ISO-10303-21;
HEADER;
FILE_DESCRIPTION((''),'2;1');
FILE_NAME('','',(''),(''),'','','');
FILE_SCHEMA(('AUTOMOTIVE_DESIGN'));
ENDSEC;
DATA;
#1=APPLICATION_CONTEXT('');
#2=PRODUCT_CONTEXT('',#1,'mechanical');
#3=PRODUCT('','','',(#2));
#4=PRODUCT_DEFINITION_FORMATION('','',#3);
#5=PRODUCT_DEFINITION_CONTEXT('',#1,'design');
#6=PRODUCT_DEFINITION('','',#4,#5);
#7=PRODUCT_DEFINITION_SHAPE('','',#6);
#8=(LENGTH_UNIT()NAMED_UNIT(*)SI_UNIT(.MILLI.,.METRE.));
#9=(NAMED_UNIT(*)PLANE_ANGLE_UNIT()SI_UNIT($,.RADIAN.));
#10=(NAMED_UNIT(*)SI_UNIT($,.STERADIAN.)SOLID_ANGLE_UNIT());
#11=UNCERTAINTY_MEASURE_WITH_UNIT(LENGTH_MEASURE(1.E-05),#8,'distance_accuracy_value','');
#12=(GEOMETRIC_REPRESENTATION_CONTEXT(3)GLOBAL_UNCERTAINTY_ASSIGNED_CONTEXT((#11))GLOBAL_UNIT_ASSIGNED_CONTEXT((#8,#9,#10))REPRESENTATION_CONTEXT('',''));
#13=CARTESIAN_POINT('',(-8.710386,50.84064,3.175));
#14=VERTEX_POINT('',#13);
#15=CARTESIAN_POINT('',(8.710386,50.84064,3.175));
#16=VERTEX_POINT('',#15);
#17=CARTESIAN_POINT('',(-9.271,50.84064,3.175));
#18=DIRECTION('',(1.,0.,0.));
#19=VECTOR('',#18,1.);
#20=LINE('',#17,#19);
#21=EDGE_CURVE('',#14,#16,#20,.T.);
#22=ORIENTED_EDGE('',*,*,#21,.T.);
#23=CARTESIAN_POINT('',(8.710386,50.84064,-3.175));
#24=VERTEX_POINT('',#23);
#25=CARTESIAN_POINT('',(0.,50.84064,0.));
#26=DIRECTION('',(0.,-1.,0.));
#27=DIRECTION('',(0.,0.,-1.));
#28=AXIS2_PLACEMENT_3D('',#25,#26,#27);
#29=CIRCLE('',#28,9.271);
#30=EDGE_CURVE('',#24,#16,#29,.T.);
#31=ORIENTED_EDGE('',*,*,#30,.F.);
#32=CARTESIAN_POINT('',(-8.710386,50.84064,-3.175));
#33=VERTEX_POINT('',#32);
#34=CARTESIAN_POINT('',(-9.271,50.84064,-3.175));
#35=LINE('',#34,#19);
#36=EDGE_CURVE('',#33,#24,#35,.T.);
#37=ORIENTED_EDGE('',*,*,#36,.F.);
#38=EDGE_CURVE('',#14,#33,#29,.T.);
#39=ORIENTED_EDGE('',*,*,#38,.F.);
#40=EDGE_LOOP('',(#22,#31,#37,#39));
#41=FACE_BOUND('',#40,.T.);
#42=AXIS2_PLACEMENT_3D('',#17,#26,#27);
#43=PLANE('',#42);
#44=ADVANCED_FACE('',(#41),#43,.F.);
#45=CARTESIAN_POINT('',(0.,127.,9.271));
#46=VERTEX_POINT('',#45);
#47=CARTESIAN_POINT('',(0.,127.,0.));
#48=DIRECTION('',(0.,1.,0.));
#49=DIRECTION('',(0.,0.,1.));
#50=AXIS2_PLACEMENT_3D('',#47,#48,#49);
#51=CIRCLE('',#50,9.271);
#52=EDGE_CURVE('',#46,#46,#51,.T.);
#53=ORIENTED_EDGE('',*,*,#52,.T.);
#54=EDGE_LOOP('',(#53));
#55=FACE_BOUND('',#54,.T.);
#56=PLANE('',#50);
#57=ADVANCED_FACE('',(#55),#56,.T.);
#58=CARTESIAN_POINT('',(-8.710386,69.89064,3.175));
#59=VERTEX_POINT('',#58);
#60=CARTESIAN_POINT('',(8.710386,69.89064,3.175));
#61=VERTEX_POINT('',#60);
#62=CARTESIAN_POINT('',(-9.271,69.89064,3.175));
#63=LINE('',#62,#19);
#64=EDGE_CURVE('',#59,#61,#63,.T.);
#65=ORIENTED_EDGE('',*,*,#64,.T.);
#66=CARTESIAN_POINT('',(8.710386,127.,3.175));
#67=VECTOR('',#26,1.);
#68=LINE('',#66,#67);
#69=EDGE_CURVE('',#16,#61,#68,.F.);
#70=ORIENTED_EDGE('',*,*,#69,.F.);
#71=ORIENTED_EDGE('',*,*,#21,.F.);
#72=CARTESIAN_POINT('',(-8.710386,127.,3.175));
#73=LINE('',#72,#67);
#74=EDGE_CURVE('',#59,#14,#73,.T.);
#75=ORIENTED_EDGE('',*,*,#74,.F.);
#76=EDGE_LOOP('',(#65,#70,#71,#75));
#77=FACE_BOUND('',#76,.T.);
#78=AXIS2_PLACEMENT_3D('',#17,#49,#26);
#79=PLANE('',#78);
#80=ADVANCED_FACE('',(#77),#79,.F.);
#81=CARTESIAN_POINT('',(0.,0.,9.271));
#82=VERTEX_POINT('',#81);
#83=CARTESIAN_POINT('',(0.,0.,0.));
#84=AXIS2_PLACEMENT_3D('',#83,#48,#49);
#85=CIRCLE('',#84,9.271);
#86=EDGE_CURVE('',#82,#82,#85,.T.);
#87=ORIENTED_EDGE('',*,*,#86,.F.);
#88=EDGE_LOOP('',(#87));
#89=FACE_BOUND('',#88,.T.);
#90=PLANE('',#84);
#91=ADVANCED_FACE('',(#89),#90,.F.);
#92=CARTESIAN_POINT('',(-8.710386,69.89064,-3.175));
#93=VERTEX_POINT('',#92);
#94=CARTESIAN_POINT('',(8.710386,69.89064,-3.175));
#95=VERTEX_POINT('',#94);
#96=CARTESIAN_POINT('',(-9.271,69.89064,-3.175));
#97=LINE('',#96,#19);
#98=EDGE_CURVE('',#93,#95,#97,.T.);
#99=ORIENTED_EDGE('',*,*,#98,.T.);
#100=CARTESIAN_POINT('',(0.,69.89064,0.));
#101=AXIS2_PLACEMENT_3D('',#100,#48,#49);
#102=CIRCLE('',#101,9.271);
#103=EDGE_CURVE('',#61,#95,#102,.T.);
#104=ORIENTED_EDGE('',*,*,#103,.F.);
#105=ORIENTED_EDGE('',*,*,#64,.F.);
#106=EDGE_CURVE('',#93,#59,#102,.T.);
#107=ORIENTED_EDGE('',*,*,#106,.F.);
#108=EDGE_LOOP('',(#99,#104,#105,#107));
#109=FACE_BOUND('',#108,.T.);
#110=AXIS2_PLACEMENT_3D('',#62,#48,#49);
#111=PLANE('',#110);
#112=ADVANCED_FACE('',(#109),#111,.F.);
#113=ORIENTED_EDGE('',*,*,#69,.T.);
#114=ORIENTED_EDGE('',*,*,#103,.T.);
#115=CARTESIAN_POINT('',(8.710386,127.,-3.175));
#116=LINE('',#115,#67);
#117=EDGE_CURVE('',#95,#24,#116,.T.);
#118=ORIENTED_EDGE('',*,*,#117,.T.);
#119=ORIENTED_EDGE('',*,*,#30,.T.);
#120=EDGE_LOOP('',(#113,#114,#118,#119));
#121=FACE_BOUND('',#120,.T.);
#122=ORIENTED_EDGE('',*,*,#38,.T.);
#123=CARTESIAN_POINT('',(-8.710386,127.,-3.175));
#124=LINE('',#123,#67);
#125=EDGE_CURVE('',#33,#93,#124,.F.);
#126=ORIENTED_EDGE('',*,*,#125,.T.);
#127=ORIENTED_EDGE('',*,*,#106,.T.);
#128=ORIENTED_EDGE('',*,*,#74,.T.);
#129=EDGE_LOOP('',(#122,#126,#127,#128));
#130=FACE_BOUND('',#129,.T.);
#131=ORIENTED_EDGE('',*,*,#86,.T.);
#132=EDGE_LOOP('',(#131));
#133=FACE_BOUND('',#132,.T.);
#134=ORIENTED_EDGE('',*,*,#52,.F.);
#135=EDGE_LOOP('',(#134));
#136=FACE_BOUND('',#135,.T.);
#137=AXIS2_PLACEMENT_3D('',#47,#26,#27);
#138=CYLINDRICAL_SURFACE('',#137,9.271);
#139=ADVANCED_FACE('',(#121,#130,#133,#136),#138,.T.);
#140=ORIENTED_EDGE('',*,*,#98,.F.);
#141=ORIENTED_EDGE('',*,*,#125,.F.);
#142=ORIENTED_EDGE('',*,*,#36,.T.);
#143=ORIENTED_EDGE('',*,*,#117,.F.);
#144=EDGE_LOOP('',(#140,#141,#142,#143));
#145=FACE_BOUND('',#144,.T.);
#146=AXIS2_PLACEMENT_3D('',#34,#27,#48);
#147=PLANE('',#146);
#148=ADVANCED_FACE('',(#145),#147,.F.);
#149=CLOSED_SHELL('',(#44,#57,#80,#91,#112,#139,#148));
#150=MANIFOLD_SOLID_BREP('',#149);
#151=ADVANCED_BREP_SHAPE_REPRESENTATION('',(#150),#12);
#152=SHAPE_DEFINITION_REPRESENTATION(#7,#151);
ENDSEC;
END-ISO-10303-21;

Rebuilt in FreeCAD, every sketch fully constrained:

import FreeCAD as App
import Part
import Sketcher

V = App.Vector
Q = App.Units.Quantity

doc = App.newDocument("Part")
body = doc.addObject("PartDesign::Body", "Body")

# Sketch on XZ plane
sketch1 = doc.addObject("Sketcher::SketchObject", "Sketch")
body.addObject(sketch1)
sketch1.AttachmentSupport = (doc.XZ_Plane, [""])
sketch1.MapMode = "FlatFace"
sketch1.addGeometry(Part.Circle(V(0, 0, 0), V(0, 0, 1), 9), False)
sketch1.addConstraint([
    Sketcher.Constraint("Coincident", 0, 3, -1, 1),
    Sketcher.Constraint("Diameter", 0, Q("0.73 in")),
])
pad1 = doc.addObject("PartDesign::Pad", "Pad")
body.addObject(pad1)
pad1.Profile = sketch1
pad1.Length = Q("5 in")
pad1.Reversed = True

# Sketch on YZ plane
sketch2 = doc.addObject("Sketcher::SketchObject", "Sketch001")
body.addObject(sketch2)
sketch2.AttachmentSupport = (doc.YZ_Plane, [""])
sketch2.MapMode = "FlatFace"
sketch2.addGeometry([
    Part.LineSegment(V(70, 3, 0), V(51, 3, 0)),
    Part.LineSegment(V(51, 3, 0), V(51, -3, 0)),
    Part.LineSegment(V(51, -3, 0), V(70, -3, 0)),
    Part.LineSegment(V(70, -3, 0), V(70, 3, 0)),
], False)
sketch2.addConstraint([
    Sketcher.Constraint("Coincident", 0, 2, 1, 1),
    Sketcher.Constraint("Coincident", 1, 2, 2, 1),
    Sketcher.Constraint("Coincident", 2, 2, 3, 1),
    Sketcher.Constraint("Coincident", 3, 2, 0, 1),
    Sketcher.Constraint("Horizontal", 0),
    Sketcher.Constraint("Vertical", 1),
    Sketcher.Constraint("Horizontal", 2),
    Sketcher.Constraint("Vertical", 3),
    Sketcher.Constraint("DistanceX", 0, 2, 0, 1, Q("0.75 in")),
    Sketcher.Constraint("DistanceY", 1, 2, 1, 1, Q("0.25 in")),
    Sketcher.Constraint("DistanceY", -1, 1, 0, 2, Q("0.125 in")),
    Sketcher.Constraint("DistanceX", -1, 1, 0, 2, Q("2.0016 in")),
])
pocket1 = doc.addObject("PartDesign::Pocket", "Pocket")
body.addObject(pocket1)
pocket1.Profile = sketch2
pocket1.Type = "ThroughAll"
pocket1.Midplane = True

doc.recompute()
